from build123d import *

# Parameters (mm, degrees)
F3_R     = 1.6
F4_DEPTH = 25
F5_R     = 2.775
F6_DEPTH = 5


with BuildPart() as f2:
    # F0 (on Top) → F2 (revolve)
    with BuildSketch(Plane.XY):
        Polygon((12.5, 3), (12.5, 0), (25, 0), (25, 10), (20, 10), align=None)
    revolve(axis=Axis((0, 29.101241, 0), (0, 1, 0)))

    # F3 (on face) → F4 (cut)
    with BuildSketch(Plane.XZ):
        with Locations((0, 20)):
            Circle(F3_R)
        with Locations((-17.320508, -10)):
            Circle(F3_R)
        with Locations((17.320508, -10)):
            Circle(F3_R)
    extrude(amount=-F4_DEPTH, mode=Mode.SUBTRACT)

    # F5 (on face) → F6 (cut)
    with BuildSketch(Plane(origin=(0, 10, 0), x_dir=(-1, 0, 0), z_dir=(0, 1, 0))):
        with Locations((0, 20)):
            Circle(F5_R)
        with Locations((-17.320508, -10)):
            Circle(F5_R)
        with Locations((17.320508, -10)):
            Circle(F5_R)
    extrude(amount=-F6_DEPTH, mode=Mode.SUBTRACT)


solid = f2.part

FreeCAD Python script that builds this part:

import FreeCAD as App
import Part
import Sketcher

V = App.Vector
Q = App.Units.Quantity

doc = App.newDocument("Part")
body = doc.addObject("PartDesign::Body", "Body")

# Sketch on XY plane
sketch1 = doc.addObject("Sketcher::SketchObject", "Sketch")
body.addObject(sketch1)
sketch1.AttachmentSupport = (doc.XY_Plane, [""])
sketch1.MapMode = "FlatFace"
sketch1.addGeometry([
    Part.LineSegment(V(12.5, 3, 0), V(12.5, 0, 0)),  # 0
    Part.LineSegment(V(12.5, 0, 0), V(25, 0, 0)),  # 1
    Part.LineSegment(V(25, 0, 0), V(25, 10, 0)),  # 2
    Part.LineSegment(V(25, 10, 0), V(20, 10, 0)),  # 3
    Part.LineSegment(V(20, 10, 0), V(12.5, 3, 0)),  # 4
], False)
sketch1.addConstraint([
    Sketcher.Constraint("Coincident", 0, 2, 1, 1),
    Sketcher.Constraint("Coincident", 1, 2, 2, 1),
    Sketcher.Constraint("Coincident", 2, 2, 3, 1),
    Sketcher.Constraint("Coincident", 3, 2, 4, 1),
    Sketcher.Constraint("Coincident", 4, 2, 0, 1),
    Sketcher.Constraint("Vertical", 0),
    Sketcher.Constraint("Horizontal", 1),
    Sketcher.Constraint("Vertical", 2),
    Sketcher.Constraint("Horizontal", 3),
    Sketcher.Constraint("PointOnObject", 0, 2, -1),
    Sketcher.Constraint("DistanceX", 3, 2, 3, 1, Q("5 mm")),
    Sketcher.Constraint("DistanceY", 0, 2, 0, 1, Q("3 mm")),
    Sketcher.Constraint("DistanceY", 2, 1, 2, 2, Q("10 mm")),
    Sketcher.Constraint("DistanceX", 1, 1, 1, 2, Q("12.5 mm")),
    Sketcher.Constraint("DistanceX", -1, 1, 1, 2, Q("25 mm")),
])
revolution = doc.addObject("PartDesign::Revolution", "Revolution")
body.addObject(revolution)
revolution.Profile = sketch1
revolution.ReferenceAxis = (sketch1, ["V_Axis"])
revolution.Angle = 360

# Sketch on XZ plane
sketch2 = doc.addObject("Sketcher::SketchObject", "Sketch001")
body.addObject(sketch2)
sketch2.AttachmentSupport = (doc.XZ_Plane, [""])
sketch2.MapMode = "FlatFace"
sketch2.addGeometry([
    Part.Circle(V(0, 20, 0), V(0, 0, 1), 1.6),
    Part.Circle(V(-17.320508, -10, 0), V(0, 0, 1), 1.6),
    Part.Circle(V(17.320508, -10, 0), V(0, 0, 1), 1.6),
], False)
sketch2.addConstraint([
    Sketcher.Constraint("Equal", 0, 1),
    Sketcher.Constraint("Equal", 1, 2),
    Sketcher.Constraint("Symmetric", 1, 3, 2, 3, -2),
    Sketcher.Constraint("PointOnObject", 0, 3, -2),
    Sketcher.Constraint("Diameter", 0, Q("3.2 mm")),
    Sketcher.Constraint("DistanceY", -1, 1, 0, 3, Q("20 mm")),
    Sketcher.Constraint("DistanceY", 1, 3, -1, 1, Q("10 mm")),
    Sketcher.Constraint("DistanceX", 1, 3, -1, 1, Q("17.320508 mm")),
])
pocket1 = doc.addObject("PartDesign::Pocket", "Pocket")
body.addObject(pocket1)
pocket1.Profile = sketch2
pocket1.Length = 25

# Sketch on XZ plane
sketch3 = doc.addObject("Sketcher::SketchObject", "Sketch002")
body.addObject(sketch3)
sketch3.AttachmentSupport = (doc.XZ_Plane, [""])
sketch3.MapMode = "FlatFace"
sketch3.AttachmentOffset = App.Placement(V(0, 0, -10), App.Rotation())
sketch3.addGeometry([
    Part.Circle(V(0, 20, 0), V(0, 0, 1), 2.775),
    Part.Circle(V(17.320508, -10, 0), V(0, 0, 1), 2.775),
    Part.Circle(V(-17.320508, -10, 0), V(0, 0, 1), 2.775),
], False)
sketch3.addConstraint([
    Sketcher.Constraint("Equal", 0, 1),
    Sketcher.Constraint("Equal", 1, 2),
    Sketcher.Constraint("Symmetric", 1, 3, 2, 3, -2),
    Sketcher.Constraint("PointOnObject", 0, 3, -2),
    Sketcher.Constraint("Diameter", 0, Q("5.55 mm")),
    Sketcher.Constraint("DistanceY", -1, 1, 0, 3, Q("20 mm")),
    Sketcher.Constraint("DistanceY", 1, 3, -1, 1, Q("10 mm")),
    Sketcher.Constraint("DistanceX", -1, 1, 1, 3, Q("17.320508 mm")),
])
pocket2 = doc.addObject("PartDesign::Pocket", "Pocket001")
body.addObject(pocket2)
pocket2.Profile = sketch3
pocket2.Length = 5
pocket2.Reversed = True

doc.recompute()
